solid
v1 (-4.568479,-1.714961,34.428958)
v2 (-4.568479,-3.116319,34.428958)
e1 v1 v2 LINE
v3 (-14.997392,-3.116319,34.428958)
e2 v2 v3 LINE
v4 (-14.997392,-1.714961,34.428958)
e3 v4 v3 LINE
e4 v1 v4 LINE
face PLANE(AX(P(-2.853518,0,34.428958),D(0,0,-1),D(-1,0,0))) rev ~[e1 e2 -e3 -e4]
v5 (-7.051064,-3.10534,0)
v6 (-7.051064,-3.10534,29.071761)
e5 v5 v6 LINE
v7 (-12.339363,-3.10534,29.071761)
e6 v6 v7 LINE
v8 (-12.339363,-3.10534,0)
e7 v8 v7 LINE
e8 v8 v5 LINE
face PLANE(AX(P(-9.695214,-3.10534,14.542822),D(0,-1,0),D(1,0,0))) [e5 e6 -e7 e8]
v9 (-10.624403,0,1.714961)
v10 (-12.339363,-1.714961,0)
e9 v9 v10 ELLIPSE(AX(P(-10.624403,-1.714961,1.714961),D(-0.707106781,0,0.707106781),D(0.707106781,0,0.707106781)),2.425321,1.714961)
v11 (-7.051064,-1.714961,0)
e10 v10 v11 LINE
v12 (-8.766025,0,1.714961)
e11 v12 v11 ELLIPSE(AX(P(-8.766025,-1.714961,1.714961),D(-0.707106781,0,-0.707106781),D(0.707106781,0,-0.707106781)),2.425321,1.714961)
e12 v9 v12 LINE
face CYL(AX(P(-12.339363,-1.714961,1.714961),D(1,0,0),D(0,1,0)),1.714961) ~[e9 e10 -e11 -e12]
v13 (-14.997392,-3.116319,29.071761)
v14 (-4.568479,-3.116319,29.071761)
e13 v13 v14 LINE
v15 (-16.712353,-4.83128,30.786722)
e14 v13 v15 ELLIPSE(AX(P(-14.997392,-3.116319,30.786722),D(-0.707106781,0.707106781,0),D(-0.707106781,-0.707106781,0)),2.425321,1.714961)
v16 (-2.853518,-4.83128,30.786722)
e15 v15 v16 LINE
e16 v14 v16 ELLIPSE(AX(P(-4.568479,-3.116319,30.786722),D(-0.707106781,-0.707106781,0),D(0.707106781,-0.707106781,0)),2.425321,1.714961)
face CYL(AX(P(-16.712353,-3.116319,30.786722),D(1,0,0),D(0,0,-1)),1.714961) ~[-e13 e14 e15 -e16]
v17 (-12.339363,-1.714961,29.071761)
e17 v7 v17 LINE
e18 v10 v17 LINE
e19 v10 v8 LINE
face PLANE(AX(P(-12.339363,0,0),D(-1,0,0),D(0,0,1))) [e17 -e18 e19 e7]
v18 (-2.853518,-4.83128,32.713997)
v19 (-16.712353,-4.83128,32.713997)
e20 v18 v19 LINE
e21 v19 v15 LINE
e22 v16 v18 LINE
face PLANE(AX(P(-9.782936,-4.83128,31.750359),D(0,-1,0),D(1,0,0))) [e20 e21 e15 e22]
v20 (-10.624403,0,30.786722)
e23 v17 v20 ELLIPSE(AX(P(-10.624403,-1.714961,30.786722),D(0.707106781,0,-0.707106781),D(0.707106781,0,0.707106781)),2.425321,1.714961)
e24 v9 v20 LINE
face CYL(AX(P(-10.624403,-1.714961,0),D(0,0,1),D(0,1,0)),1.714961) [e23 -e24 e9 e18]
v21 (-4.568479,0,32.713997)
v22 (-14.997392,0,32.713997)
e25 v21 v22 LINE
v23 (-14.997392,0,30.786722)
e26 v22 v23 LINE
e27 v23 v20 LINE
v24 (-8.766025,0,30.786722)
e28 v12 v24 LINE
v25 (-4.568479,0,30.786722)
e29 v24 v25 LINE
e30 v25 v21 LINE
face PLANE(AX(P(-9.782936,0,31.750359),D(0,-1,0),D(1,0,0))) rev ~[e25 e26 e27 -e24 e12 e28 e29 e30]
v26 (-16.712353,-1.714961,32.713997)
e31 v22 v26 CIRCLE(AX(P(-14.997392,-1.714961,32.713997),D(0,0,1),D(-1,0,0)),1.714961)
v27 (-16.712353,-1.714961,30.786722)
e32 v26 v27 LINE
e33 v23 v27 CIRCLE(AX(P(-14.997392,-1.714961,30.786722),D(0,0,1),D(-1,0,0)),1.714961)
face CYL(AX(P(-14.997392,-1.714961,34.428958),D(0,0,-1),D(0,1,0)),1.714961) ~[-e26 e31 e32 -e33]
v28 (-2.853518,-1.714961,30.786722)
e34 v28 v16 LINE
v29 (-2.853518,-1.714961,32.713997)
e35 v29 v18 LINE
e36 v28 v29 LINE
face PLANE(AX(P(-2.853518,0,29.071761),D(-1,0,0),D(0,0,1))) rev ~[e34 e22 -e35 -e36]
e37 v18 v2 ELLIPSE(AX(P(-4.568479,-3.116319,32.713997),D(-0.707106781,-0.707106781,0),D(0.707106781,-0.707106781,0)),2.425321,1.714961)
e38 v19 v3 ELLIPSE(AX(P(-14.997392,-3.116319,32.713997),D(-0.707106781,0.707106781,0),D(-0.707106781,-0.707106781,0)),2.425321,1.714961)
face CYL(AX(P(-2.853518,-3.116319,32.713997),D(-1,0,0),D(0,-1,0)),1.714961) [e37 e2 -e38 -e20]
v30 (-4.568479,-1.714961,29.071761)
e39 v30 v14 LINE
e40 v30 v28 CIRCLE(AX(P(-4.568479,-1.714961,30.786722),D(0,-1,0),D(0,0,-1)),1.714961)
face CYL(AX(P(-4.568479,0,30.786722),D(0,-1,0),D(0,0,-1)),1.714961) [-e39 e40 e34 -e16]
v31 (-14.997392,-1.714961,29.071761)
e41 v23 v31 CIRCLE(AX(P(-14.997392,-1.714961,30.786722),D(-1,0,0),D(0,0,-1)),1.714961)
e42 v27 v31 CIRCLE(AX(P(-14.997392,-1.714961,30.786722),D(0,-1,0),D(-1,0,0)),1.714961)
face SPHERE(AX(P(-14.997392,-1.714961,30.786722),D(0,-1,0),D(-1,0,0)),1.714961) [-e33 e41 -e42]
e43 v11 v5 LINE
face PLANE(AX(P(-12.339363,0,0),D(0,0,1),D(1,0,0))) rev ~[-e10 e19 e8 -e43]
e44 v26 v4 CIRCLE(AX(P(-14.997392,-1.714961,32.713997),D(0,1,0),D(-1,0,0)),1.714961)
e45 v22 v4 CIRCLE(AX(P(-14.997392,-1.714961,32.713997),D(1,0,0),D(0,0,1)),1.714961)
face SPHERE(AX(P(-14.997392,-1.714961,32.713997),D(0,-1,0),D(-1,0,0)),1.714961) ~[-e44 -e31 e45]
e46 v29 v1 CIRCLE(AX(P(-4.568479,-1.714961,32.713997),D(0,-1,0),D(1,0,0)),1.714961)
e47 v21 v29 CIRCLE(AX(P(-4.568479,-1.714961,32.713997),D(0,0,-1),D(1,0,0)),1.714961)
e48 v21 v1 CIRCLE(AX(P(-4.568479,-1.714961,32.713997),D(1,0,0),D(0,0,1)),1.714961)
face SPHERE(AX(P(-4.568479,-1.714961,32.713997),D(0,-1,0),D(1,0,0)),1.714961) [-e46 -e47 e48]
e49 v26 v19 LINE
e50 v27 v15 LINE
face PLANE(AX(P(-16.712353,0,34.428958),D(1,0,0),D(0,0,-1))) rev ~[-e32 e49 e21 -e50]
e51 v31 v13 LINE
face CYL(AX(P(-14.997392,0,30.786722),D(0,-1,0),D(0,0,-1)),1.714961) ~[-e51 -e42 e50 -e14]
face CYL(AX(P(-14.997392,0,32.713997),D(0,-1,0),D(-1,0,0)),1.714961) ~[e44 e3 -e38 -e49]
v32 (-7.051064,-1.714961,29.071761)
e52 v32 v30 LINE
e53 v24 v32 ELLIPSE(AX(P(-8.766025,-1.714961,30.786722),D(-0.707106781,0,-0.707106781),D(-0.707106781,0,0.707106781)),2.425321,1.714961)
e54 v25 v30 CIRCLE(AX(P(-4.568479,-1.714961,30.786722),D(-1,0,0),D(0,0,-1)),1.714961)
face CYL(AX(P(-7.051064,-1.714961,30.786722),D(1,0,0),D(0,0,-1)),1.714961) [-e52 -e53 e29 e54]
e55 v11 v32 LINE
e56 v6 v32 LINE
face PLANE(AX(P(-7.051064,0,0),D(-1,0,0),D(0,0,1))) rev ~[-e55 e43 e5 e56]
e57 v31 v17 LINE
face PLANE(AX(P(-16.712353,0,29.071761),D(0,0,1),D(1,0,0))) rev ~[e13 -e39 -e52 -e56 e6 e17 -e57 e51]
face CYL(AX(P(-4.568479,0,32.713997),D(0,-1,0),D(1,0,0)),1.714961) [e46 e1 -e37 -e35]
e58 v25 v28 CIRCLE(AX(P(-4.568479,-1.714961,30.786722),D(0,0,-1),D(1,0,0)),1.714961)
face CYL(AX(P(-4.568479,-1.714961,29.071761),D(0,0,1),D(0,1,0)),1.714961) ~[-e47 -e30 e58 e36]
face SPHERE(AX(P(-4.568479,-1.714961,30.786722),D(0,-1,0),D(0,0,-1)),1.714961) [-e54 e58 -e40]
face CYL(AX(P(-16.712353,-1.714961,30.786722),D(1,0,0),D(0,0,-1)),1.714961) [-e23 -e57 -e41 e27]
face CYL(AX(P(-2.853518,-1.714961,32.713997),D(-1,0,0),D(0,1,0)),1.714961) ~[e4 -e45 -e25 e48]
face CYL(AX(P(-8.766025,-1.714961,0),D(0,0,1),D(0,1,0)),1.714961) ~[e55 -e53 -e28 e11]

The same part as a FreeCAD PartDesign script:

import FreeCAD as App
import Part
import Sketcher
Q = App.Units.Quantity


def edges_at(feature, points):
    """Names of the edges that pass closest to the given points."""
    edges = feature.Shape.Edges
    near = lambda p: min(range(len(edges)), key=lambda i: edges[i].distToShape(Part.Vertex(*p))[0])
    return sorted({f"Edge{near(p) + 1}" for p in points})

doc = App.newDocument("Part")
body = doc.addObject("PartDesign::Body", "Body")

# Sketch on XZ plane
sketch1 = doc.addObject("Sketcher::SketchObject", "Sketch")
body.addObject(sketch1)
sketch1.AttachmentSupport = (doc.XZ_Plane, [""])
sketch1.MapMode = "FlatFace"
sketch1.addGeometry(Part.LineSegment(App.Vector(-12, 29, 0), App.Vector(-12, 0, 0)), False)
sketch1.addGeometry(Part.LineSegment(App.Vector(-12, 0, 0), App.Vector(-7, 0, 0)), False)
sketch1.addGeometry(Part.LineSegment(App.Vector(-7, 0, 0), App.Vector(-7, 29, 0)), False)
sketch1.addGeometry(Part.LineSegment(App.Vector(-7, 29, 0), App.Vector(-12, 29, 0)), False)
sketch1.addConstraint(Sketcher.Constraint("Coincident", 0, 2, 1, 1))
sketch1.addConstraint(Sketcher.Constraint("Coincident", 1, 2, 2, 1))
sketch1.addConstraint(Sketcher.Constraint("Coincident", 2, 2, 3, 1))
sketch1.addConstraint(Sketcher.Constraint("Coincident", 3, 2, 0, 1))
sketch1.addConstraint(Sketcher.Constraint("Vertical", 0))
sketch1.addConstraint(Sketcher.Constraint("Horizontal", 1))
sketch1.addConstraint(Sketcher.Constraint("Vertical", 2))
sketch1.addConstraint(Sketcher.Constraint("Horizontal", 3))
sketch1.addConstraint(Sketcher.Constraint("PointOnObject", 0, 2, -1))
sketch1.addConstraint(Sketcher.Constraint("DistanceX", 1, 1, 1, 2, Q("5.288299 mm")))
sketch1.addConstraint(Sketcher.Constraint("DistanceY", 0, 2, 0, 1, Q("29.085644 mm")))
sketch1.addConstraint(Sketcher.Constraint("DistanceX", 0, 2, -1, 1, Q("12.339363 mm")))
pad1 = doc.addObject("PartDesign::Pad", "Pad")
body.addObject(pad1)
pad1.Profile = sketch1
pad1.Length = 3.10534

# Sketch on XZ plane
sketch2 = doc.addObject("Sketcher::SketchObject", "Sketch001")
body.addObject(sketch2)
sketch2.AttachmentSupport = (doc.XZ_Plane, [""])
sketch2.MapMode = "FlatFace"
sketch2.addGeometry(Part.LineSegment(App.Vector(-17, 29, 0), App.Vector(-3, 29, 0)), False)
sketch2.addGeometry(Part.LineSegment(App.Vector(-3, 29, 0), App.Vector(-3, 34, 0)), False)
sketch2.addGeometry(Part.LineSegment(App.Vector(-3, 34, 0), App.Vector(-17, 34, 0)), False)
sketch2.addGeometry(Part.LineSegment(App.Vector(-17, 34, 0), App.Vector(-17, 29, 0)), False)
sketch2.addConstraint(Sketcher.Constraint("Coincident", 0, 2, 1, 1))
sketch2.addConstraint(Sketcher.Constraint("Coincident", 1, 2, 2, 1))
sketch2.addConstraint(Sketcher.Constraint("Coincident", 2, 2, 3, 1))
sketch2.addConstraint(Sketcher.Constraint("Coincident", 3, 2, 0, 1))
sketch2.addConstraint(Sketcher.Constraint("Horizontal", 0))
sketch2.addConstraint(Sketcher.Constraint("Vertical", 1))
sketch2.addConstraint(Sketcher.Constraint("Horizontal", 2))
sketch2.addConstraint(Sketcher.Constraint("Vertical", 3))
sketch2.addConstraint(Sketcher.Constraint("DistanceX", 0, 1, 0, 2, Q("13.858835 mm")))
sketch2.addConstraint(Sketcher.Constraint("DistanceY", 1, 1, 1, 2, Q("5.357197 mm")))
sketch2.addConstraint(Sketcher.Constraint("DistanceX", 0, 2, -1, 1, Q("2.853518 mm")))
sketch2.addConstraint(Sketcher.Constraint("DistanceY", -1, 1, 0, 2, Q("29.071761 mm")))
pad2 = doc.addObject("PartDesign::Pad", "Pad001")
body.addObject(pad2)
pad2.Profile = sketch2
pad2.Length = 4.83128
doc.recompute()

fillet = doc.addObject("PartDesign::Fillet", "Fillet")
body.addObject(fillet)
fillet.Base = (pad2, edges_at(pad2, [
    (-16.712, -2.416, 34.429),
    (-16.712, -2.416, 29.072),
    (-2.854, -2.416, 34.429),
    (-9.783, -4.831, 29.072),
    (-2.854, -2.416, 29.072),
    (-9.783, -4.831, 34.429),
    (-16.712, 0, 31.75),
    (-14.526, 0, 29.072),
    (-12.339, 0, 14.536),
    (-9.695, 0, 0),
    (-7.051, 0, 14.536),
    (-4.952, 0, 29.072),
    (-2.854, 0, 31.75),
    (-9.783, 0, 34.429),
]))
fillet.Radius = 1.714961

doc.recompute()
